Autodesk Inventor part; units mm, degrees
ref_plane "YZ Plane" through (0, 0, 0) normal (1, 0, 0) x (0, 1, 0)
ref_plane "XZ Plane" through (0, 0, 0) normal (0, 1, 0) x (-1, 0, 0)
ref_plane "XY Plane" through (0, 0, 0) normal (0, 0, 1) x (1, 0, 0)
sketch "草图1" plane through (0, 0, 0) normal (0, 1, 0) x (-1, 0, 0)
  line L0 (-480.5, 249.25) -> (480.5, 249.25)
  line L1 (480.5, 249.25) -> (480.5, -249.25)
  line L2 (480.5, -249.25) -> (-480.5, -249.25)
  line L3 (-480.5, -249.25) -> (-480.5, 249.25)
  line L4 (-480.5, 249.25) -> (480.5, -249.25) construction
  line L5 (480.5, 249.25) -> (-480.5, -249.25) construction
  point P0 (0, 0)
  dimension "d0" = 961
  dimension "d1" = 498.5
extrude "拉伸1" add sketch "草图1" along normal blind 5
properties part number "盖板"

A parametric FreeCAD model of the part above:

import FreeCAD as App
import Part
import Sketcher
from FreeCAD import Vector

doc = App.newDocument("Part")
body = doc.addObject("PartDesign::Body", "Body")

sketch1 = doc.addObject("Sketcher::SketchObject", "Sketch")
body.addObject(sketch1)
sketch1.AttachmentSupport = (doc.XZ_Plane, [""])
sketch1.MapMode = "FlatFace"
sketch1.addGeometry([
    Part.LineSegment(Vector(-480, 249, 0), Vector(480, 249, 0)),
    Part.LineSegment(Vector(480, 249, 0), Vector(480, -249, 0)),
    Part.LineSegment(Vector(480, -249, 0), Vector(-480, -249, 0)),
    Part.LineSegment(Vector(-480, -249, 0), Vector(-480, 249, 0)),
], False)
sketch1.addConstraint([
    Sketcher.Constraint("Coincident", 0, 2, 1, 1),
    Sketcher.Constraint("Coincident", 1, 2, 2, 1),
    Sketcher.Constraint("Coincident", 2, 2, 3, 1),
    Sketcher.Constraint("Coincident", 3, 2, 0, 1),
    Sketcher.Constraint("Horizontal", 0),
    Sketcher.Constraint("Vertical", 1),
    Sketcher.Constraint("Horizontal", 2),
    Sketcher.Constraint("Vertical", 3),
    Sketcher.Constraint("Symmetric", 0, 2, 2, 2, -1, 1),
    Sketcher.Constraint("DistanceX", 0, 1, 0, 2, 961.0),
    Sketcher.Constraint("DistanceY", 1, 2, 1, 1, 498.5),
])
pad1 = doc.addObject("PartDesign::Pad", "Pad")
body.addObject(pad1)
pad1.Profile = sketch1
pad1.Length = 5
pad1.Reversed = True

doc.recompute()
